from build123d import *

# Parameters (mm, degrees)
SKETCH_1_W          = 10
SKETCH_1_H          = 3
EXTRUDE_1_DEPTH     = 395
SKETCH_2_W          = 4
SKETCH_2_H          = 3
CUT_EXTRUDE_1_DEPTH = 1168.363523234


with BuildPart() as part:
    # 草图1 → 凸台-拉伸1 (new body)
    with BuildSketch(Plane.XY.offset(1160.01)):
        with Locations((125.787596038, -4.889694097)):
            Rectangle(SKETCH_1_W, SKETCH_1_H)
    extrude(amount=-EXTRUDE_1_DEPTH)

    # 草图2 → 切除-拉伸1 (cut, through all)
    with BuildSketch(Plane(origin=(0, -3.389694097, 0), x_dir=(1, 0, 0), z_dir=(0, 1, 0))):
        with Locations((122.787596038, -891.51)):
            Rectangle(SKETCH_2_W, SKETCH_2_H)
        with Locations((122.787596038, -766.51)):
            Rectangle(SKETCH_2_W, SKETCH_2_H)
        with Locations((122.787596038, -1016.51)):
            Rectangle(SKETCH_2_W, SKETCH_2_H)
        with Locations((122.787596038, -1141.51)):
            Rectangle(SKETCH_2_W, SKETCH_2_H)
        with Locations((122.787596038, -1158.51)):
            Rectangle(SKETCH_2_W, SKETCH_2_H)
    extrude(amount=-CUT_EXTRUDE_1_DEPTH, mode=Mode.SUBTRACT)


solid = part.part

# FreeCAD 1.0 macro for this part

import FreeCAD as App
import Part
import Sketcher
from FreeCAD import Vector
Q = App.Units.Quantity


def add_polygon(sketch, points):
    """Adds a closed chain of lines whose ends are joined by coincident constraints."""
    first, n = sketch.GeometryCount, len(points)
    for a, b in zip(points, points[1:] + points[:1]):
        sketch.addGeometry(Part.LineSegment(App.Vector(*a, 0), App.Vector(*b, 0)), False)
    for i in range(n):
        sketch.addConstraint(Sketcher.Constraint("Coincident", first + i, 2, first + (i + 1) % n, 1))

doc = App.newDocument("Part")
body = doc.addObject("PartDesign::Body", "Body")

# Sketch on XY plane
sketch1 = body.newObject("Sketcher::SketchObject", "Sketch")
sketch1.AttachmentSupport = (doc.getObject("XY_Plane"), [""])
sketch1.MapMode = "FlatFace"
sketch1.AttachmentOffset = App.Placement(Vector(0, 0, 1160.01), App.Rotation())
add_polygon(sketch1, [(120.787596, -3.389694), (120.787596, -6.389694), (130.787596, -6.389694), (130.787596, -3.389694)])  # lines 0-3
sketch1.addConstraint([
    Sketcher.Constraint("Vertical", 0),
    Sketcher.Constraint("Horizontal", 1),
    Sketcher.Constraint("Vertical", 2),
    Sketcher.Constraint("Horizontal", 3),
    Sketcher.Constraint("DistanceX", 1, 1, 1, 2, Q("10 mm")),
    Sketcher.Constraint("DistanceY", 0, 2, 0, 1, Q("3 mm")),
    Sketcher.Constraint("DistanceX", -1, 1, 0, 2, Q("120.787596 mm")),
    Sketcher.Constraint("DistanceY", 0, 2, -1, 1, Q("6.389694 mm")),
])
pad1 = body.newObject("PartDesign::Pad", "Pad")
pad1.Profile = sketch1
pad1.Length = 395
pad1.Reversed = True

# Sketch on XZ plane
sketch2 = body.newObject("Sketcher::SketchObject", "Sketch001")
sketch2.AttachmentSupport = (doc.getObject("XZ_Plane"), [""])
sketch2.MapMode = "FlatFace"
sketch2.AttachmentOffset = App.Placement(Vector(0, 0, 3.389694), App.Rotation())
add_polygon(sketch2, [(120.787596, 890.01), (120.787596, 893.01), (124.787596, 893.01), (124.787596, 890.01)])  # lines 0-3
add_polygon(sketch2, [(120.787596, 765.01), (120.787596, 768.01), (124.787596, 768.01), (124.787596, 765.01)])  # lines 4-7
add_polygon(sketch2, [(120.787596, 1015.01), (120.787596, 1018.01), (124.787596, 1018.01), (124.787596, 1015.01)])  # lines 8-11
add_polygon(sketch2, [(120.787596, 1140.01), (120.787596, 1143.01), (124.787596, 1143.01), (124.787596, 1140.01)])  # lines 12-15
add_polygon(sketch2, [(120.787596, 1157.01), (120.787596, 1160.01), (124.787596, 1160.01), (124.787596, 1157.01)])  # lines 16-19
sketch2.addConstraint([
    Sketcher.Constraint("Vertical", 0),
    Sketcher.Constraint("Horizontal", 1),
    Sketcher.Constraint("Vertical", 2),
    Sketcher.Constraint("Horizontal", 3),
    Sketcher.Constraint("Vertical", 4),
    Sketcher.Constraint("Horizontal", 5),
    Sketcher.Constraint("Vertical", 6),
    Sketcher.Constraint("Horizontal", 7),
    Sketcher.Constraint("Vertical", 8),
    Sketcher.Constraint("Horizontal", 9),
    Sketcher.Constraint("Vertical", 10),
    Sketcher.Constraint("Horizontal", 11),
    Sketcher.Constraint("Vertical", 12),
    Sketcher.Constraint("Horizontal", 13),
    Sketcher.Constraint("Vertical", 14),
    Sketcher.Constraint("Horizontal", 15),
    Sketcher.Constraint("Vertical", 16),
    Sketcher.Constraint("Horizontal", 17),
    Sketcher.Constraint("Vertical", 18),
    Sketcher.Constraint("Horizontal", 19),
    Sketcher.Constraint("Vertical", 3, 2, 4, 2),
    Sketcher.Constraint("Vertical", 2, 2, 5, 2),
    Sketcher.Constraint("Vertical", 7, 2, 8, 2),
    Sketcher.Constraint("Vertical", 6, 2, 9, 2),
    Sketcher.Constraint("Vertical", 11, 2, 12, 2),
    Sketcher.Constraint("Vertical", 10, 2, 13, 2),
    Sketcher.Constraint("Vertical", 15, 2, 16, 2),
    Sketcher.Constraint("Vertical", 14, 2, 17, 2),
    Sketcher.Constraint("Equal", 2, 4),
    Sketcher.Constraint("Equal", 6, 8),
    Sketcher.Constraint("Equal", 10, 12),
    Sketcher.Constraint("Equal", 14, 16),
    Sketcher.Constraint("DistanceX", 1, 1, 1, 2, Q("4 mm")),
    Sketcher.Constraint("DistanceY", 0, 1, 0, 2, Q("3 mm")),
    Sketcher.Constraint("DistanceY", 4, 2, 3, 2, Q("122 mm")),
    Sketcher.Constraint("DistanceY", 0, 2, 8, 2, Q("125 mm")),
    Sketcher.Constraint("DistanceY", 8, 2, 12, 2, Q("125 mm")),
    Sketcher.Constraint("DistanceY", 12, 2, 16, 2, Q("17 mm")),
    Sketcher.Constraint("DistanceY", -1, 1, 0, 2, Q("893.01 mm")),
    Sketcher.Constraint("DistanceX", -1, 1, 0, 2, Q("120.787596 mm")),
])
pocket1 = body.newObject("PartDesign::Pocket", "Pocket")
pocket1.Profile = sketch2
pocket1.Type = "ThroughAll"
pocket1.Reversed = True

doc.recompute()
